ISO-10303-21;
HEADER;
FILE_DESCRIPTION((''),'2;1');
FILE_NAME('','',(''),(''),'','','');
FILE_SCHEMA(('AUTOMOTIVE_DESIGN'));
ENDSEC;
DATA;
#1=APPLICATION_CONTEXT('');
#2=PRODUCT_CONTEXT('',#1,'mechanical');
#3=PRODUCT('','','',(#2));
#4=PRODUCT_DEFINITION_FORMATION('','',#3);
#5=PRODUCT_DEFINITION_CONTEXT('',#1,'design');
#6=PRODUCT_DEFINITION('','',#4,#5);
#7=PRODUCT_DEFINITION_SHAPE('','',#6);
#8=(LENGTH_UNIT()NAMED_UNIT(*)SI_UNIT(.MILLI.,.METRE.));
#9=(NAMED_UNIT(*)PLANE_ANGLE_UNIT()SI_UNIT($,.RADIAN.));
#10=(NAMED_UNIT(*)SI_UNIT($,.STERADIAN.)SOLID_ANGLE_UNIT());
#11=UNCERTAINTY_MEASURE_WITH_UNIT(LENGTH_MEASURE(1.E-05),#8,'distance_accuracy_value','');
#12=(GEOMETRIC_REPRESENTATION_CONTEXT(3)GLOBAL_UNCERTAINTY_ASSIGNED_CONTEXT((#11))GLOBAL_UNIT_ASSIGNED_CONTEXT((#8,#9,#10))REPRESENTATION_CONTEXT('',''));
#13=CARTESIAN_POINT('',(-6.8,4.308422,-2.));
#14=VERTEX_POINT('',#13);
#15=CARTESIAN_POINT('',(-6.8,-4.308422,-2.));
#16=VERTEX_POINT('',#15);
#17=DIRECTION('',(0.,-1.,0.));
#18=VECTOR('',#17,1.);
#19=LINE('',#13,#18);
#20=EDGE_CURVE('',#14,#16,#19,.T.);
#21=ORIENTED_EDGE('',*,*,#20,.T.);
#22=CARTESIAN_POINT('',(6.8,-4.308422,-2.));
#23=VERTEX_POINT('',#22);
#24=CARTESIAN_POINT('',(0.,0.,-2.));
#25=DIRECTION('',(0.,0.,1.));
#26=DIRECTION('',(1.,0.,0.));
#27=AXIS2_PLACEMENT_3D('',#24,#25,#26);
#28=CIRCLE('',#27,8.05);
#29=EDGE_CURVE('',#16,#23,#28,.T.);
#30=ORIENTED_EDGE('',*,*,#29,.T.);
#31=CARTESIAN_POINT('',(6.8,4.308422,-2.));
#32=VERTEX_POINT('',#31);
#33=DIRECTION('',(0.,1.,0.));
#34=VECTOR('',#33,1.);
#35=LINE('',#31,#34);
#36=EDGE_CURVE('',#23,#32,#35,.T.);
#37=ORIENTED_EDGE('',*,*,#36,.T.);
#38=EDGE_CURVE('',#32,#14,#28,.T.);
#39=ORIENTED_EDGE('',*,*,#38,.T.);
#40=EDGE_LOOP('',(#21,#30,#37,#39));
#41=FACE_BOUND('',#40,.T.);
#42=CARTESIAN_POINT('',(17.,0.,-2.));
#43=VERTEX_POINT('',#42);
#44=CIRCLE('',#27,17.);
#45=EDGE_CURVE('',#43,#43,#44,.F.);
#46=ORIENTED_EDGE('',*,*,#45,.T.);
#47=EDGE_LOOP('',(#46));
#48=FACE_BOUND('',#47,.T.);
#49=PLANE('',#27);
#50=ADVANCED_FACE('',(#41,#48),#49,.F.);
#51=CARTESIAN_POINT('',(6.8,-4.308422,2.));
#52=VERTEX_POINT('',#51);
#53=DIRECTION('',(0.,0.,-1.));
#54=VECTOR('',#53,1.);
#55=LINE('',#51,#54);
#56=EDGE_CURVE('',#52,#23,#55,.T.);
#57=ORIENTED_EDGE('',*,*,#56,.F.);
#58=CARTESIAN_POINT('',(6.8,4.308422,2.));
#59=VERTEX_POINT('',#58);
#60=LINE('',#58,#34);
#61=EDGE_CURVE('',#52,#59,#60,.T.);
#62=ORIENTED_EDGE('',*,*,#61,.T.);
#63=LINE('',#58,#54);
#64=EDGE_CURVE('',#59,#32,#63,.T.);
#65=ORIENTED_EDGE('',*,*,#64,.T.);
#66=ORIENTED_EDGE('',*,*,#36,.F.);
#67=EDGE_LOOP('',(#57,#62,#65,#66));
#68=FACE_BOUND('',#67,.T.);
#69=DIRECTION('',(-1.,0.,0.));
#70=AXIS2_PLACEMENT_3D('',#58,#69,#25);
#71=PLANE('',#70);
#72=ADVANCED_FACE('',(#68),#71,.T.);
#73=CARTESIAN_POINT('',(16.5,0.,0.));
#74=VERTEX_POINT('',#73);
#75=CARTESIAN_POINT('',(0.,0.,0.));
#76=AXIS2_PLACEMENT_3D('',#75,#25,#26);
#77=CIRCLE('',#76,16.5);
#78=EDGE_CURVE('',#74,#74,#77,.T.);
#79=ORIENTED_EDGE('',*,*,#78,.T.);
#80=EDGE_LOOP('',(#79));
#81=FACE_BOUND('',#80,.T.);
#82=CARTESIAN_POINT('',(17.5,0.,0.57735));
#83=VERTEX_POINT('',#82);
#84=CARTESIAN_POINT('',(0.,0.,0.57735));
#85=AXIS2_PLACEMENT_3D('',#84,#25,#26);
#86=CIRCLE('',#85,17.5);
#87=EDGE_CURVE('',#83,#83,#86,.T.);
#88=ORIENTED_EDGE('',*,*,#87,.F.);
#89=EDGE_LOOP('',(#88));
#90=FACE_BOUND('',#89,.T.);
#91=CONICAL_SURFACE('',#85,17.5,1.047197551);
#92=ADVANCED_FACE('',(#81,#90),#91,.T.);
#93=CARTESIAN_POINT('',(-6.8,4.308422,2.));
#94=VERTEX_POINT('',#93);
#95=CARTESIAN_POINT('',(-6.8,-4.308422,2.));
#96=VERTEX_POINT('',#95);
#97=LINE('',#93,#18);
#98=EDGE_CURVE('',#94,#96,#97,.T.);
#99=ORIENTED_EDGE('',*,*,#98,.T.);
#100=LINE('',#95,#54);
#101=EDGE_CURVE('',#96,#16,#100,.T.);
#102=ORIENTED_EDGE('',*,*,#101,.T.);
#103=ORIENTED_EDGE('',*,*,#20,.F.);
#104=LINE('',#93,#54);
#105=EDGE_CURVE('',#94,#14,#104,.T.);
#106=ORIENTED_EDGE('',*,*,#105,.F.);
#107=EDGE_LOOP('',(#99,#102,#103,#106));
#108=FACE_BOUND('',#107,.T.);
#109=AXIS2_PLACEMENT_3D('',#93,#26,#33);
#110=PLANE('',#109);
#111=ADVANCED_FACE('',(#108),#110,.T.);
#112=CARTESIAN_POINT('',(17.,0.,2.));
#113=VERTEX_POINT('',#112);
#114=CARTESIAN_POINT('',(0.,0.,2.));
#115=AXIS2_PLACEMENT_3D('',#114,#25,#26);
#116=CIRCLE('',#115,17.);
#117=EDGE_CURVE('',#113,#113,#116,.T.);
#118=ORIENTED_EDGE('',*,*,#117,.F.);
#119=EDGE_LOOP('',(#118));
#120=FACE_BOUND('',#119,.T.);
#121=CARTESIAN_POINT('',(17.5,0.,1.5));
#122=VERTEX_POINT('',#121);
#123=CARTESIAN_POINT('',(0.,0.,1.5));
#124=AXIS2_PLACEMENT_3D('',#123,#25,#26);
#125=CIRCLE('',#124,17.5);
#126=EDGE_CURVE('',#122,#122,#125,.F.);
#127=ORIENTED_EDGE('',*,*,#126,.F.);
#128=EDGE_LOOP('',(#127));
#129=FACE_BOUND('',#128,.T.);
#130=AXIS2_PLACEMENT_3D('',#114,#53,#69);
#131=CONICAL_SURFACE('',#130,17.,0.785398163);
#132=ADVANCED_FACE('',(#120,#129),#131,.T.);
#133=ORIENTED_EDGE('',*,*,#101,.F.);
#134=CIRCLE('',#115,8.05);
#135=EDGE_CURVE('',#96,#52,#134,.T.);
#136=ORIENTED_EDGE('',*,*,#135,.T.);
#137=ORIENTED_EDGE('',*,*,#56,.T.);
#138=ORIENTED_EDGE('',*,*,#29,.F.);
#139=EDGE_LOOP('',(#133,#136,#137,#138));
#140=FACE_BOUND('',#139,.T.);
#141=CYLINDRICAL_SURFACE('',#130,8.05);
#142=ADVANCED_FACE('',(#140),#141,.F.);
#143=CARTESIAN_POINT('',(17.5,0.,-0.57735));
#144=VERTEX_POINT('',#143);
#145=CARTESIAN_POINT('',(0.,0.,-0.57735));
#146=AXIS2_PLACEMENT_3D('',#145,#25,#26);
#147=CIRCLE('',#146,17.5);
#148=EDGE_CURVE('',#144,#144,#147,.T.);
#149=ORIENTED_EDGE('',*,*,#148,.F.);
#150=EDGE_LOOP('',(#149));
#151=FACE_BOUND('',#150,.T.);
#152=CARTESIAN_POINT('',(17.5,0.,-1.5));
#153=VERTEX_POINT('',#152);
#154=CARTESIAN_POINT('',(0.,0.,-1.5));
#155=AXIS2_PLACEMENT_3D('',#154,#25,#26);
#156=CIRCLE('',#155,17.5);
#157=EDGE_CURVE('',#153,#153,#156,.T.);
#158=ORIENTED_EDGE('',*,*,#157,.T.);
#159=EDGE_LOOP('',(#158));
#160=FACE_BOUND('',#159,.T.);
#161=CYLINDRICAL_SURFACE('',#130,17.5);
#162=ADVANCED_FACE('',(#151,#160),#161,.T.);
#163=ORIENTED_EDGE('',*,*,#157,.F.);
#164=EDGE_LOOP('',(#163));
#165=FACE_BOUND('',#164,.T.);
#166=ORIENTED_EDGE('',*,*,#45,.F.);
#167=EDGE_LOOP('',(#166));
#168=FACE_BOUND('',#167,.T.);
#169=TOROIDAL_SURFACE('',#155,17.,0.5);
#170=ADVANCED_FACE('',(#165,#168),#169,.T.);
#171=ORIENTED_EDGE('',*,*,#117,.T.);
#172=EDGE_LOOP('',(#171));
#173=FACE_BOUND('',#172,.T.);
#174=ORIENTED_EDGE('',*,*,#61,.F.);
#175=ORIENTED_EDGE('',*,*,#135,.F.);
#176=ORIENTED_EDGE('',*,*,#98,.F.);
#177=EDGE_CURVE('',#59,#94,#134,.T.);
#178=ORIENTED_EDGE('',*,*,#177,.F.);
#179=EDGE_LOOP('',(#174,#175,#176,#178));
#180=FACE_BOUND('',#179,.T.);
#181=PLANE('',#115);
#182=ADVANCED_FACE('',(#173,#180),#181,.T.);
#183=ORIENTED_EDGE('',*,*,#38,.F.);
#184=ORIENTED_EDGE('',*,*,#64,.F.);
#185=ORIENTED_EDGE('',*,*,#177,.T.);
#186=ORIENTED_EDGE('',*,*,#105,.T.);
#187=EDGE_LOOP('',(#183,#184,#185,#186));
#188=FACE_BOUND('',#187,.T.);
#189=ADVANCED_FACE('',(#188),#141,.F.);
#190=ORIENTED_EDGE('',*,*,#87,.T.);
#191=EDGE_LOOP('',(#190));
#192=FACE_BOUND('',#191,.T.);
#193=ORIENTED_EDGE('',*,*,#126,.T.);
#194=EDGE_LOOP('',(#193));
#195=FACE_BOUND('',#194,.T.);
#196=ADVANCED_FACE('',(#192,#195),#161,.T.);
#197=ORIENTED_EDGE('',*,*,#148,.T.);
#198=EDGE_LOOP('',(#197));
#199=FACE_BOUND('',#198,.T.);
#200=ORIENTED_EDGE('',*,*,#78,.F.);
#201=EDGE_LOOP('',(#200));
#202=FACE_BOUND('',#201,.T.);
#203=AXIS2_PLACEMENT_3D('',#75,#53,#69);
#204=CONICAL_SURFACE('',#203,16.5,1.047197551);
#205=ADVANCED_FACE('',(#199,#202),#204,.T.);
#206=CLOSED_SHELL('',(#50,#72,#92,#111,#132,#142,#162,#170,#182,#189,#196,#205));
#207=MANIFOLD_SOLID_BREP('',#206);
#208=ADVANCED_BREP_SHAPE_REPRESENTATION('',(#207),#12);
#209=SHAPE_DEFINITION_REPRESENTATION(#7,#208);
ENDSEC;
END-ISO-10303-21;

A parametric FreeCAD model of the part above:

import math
import FreeCAD as App
import Part
import Sketcher
Q = App.Units.Quantity


def edges_at(feature, points):
    """Names of the edges that pass closest to the given points."""
    edges = feature.Shape.Edges
    near = lambda p: min(range(len(edges)), key=lambda i: edges[i].distToShape(Part.Vertex(*p))[0])
    return sorted({f"Edge{near(p) + 1}" for p in points})

doc = App.newDocument("Part")
params = doc.addObject("Spreadsheet::Sheet", "Params")
for row, (alias, value) in enumerate([
    ("sketch1_diameter", "35 mm"),
    ("sketch1_radius", "8.05 mm"),
    ("pad1_length", "4 mm"),
    ("groove_angle", "360 deg"),
    ("chamfer_size", "0.5 mm"),
    ("fillet_radius", "0.5 mm"),
], start=1):
    params.set(f"A{row}", alias)
    params.set(f"B{row}", "=" + value)
    params.setAlias(f"B{row}", alias)

body = doc.addObject("PartDesign::Body", "Body")

sketch1 = body.newObject("Sketcher::SketchObject", "Sketch")
sketch1.AttachmentSupport = (doc.getObject("XY_Plane"), [""])
sketch1.MapMode = "FlatFace"
sketch1.addGeometry([
    Part.Circle(App.Vector(0, 0, 0), App.Vector(0, 0, 1), 18),
    Part.ArcOfCircle(Part.Circle(App.Vector(0, 0, 0), App.Vector(0, 0, 1), 8), math.radians(32), math.radians(148)),
    Part.LineSegment(App.Vector(7, 4, 0), App.Vector(7, -4, 0)),
    Part.ArcOfCircle(Part.Circle(App.Vector(0, 0, 0), App.Vector(0, 0, 1), 8), math.radians(-148), math.radians(-32)),
    Part.LineSegment(App.Vector(-7, -4, 0), App.Vector(-7, 4, 0)),
], False)
sketch1.addConstraint([
    Sketcher.Constraint("Coincident", 1, 1, 2, 1),
    Sketcher.Constraint("Coincident", 2, 2, 3, 2),
    Sketcher.Constraint("Coincident", 3, 1, 4, 1),
    Sketcher.Constraint("Coincident", 4, 2, 1, 2),
    Sketcher.Constraint("Vertical", 2),
    Sketcher.Constraint("Vertical", 4),
    Sketcher.Constraint("Coincident", 0, 3, -1, 1),
    Sketcher.Constraint("Coincident", 1, 3, -1, 1),
    Sketcher.Constraint("Coincident", 3, 3, -1, 1),
    Sketcher.Constraint("Equal", 1, 3),
    Sketcher.Constraint("Horizontal", 2, 2, 3, 1),
    Sketcher.Constraint("Diameter", 0, 35.0),
    Sketcher.Constraint("Radius", 1, 8.05),
    Sketcher.Constraint("DistanceX", -1, 1, 1, 1, 6.8),
])
sketch1.setExpression("Constraints[11]", "Params.sketch1_diameter")
sketch1.setExpression("Constraints[12]", "Params.sketch1_radius")
pad1 = body.newObject("PartDesign::Pad", "Pad")
pad1.Profile = sketch1
pad1.setExpression("Length", "Params.pad1_length")
pad1.Midplane = True

sketch2 = body.newObject("Sketcher::SketchObject", "Sketch001")
sketch2.AttachmentSupport = (doc.getObject("YZ_Plane"), [""])
sketch2.MapMode = "FlatFace"
sketch2.addGeometry([
    Part.LineSegment(App.Vector(17.5, -0.6, 0), App.Vector(17.5, 0.6, 0)),
    Part.LineSegment(App.Vector(17.5, 0.6, 0), App.Vector(16.5, 0, 0)),
    Part.LineSegment(App.Vector(16.5, 0, 0), App.Vector(17.5, -0.6, 0)),
], False)
sketch2.addConstraint([
    Sketcher.Constraint("Coincident", 0, 2, 1, 1),
    Sketcher.Constraint("Coincident", 1, 2, 2, 1),
    Sketcher.Constraint("Coincident", 2, 2, 0, 1),
    Sketcher.Constraint("Vertical", 0),
    Sketcher.Constraint("PointOnObject", 1, 2, -1),
    Sketcher.Constraint("Equal", 1, 2),
    Sketcher.Constraint("Angle", 1, Q("-150 deg")),
    Sketcher.Constraint("DistanceX", 1, 2, 0, 2, 1.0),
    Sketcher.Constraint("DistanceX", -1, 1, 0, 2, 17.5),
])
groove = body.newObject("PartDesign::Groove", "Groove")
groove.Profile = sketch2
groove.ReferenceAxis = (sketch2, ["V_Axis"])
groove.setExpression("Angle", "Params.groove_angle")
doc.recompute()

chamfer = body.newObject("PartDesign::Chamfer", "Chamfer")
chamfer.Base = (groove, edges_at(groove, [(-17.5, 0, 2)]))
chamfer.setExpression("Size", "Params.chamfer_size")
doc.recompute()

fillet = body.newObject("PartDesign::Fillet", "Fillet")
fillet.Base = (chamfer, edges_at(chamfer, [(-17.5, 0, -2)]))
fillet.setExpression("Radius", "Params.fillet_radius")

doc.recompute()
